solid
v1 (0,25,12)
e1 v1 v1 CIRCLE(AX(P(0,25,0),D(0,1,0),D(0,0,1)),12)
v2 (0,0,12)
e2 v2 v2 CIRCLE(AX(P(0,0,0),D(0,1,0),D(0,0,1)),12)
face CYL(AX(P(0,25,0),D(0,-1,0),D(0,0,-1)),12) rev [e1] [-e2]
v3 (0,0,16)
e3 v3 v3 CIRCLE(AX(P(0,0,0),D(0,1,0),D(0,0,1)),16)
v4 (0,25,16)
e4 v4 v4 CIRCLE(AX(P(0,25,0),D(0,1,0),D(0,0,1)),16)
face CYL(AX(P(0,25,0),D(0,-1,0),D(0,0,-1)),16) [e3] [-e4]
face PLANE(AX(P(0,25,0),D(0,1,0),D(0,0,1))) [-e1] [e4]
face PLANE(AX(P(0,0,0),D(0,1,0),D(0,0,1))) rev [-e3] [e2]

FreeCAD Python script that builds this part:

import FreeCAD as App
import Part
import Sketcher
Q = App.Units.Quantity

doc = App.newDocument("Part")
body = doc.addObject("PartDesign::Body", "Body")

sketch1 = doc.addObject("Sketcher::SketchObject", "Sketch")
body.addObject(sketch1)
sketch1.AttachmentSupport = (doc.XZ_Plane, [""])
sketch1.MapMode = "FlatFace"
sketch1.addGeometry(Part.Circle(App.Vector(0, 0, 0), App.Vector(0, 0, 1), 16), False)
sketch1.addGeometry(Part.Circle(App.Vector(0, 0, 0), App.Vector(0, 0, 1), 12), False)
sketch1.addConstraint(Sketcher.Constraint("Coincident", 0, 3, -1, 1))
sketch1.addConstraint(Sketcher.Constraint("Coincident", 1, 3, -1, 1))
sketch1.addConstraint(Sketcher.Constraint("Diameter", 0, Q("32 mm")))
sketch1.addConstraint(Sketcher.Constraint("Diameter", 1, Q("24 mm")))
pad1 = doc.addObject("PartDesign::Pad", "Pad")
body.addObject(pad1)
pad1.Profile = sketch1
pad1.Length = 25
pad1.Reversed = True

doc.recompute()
